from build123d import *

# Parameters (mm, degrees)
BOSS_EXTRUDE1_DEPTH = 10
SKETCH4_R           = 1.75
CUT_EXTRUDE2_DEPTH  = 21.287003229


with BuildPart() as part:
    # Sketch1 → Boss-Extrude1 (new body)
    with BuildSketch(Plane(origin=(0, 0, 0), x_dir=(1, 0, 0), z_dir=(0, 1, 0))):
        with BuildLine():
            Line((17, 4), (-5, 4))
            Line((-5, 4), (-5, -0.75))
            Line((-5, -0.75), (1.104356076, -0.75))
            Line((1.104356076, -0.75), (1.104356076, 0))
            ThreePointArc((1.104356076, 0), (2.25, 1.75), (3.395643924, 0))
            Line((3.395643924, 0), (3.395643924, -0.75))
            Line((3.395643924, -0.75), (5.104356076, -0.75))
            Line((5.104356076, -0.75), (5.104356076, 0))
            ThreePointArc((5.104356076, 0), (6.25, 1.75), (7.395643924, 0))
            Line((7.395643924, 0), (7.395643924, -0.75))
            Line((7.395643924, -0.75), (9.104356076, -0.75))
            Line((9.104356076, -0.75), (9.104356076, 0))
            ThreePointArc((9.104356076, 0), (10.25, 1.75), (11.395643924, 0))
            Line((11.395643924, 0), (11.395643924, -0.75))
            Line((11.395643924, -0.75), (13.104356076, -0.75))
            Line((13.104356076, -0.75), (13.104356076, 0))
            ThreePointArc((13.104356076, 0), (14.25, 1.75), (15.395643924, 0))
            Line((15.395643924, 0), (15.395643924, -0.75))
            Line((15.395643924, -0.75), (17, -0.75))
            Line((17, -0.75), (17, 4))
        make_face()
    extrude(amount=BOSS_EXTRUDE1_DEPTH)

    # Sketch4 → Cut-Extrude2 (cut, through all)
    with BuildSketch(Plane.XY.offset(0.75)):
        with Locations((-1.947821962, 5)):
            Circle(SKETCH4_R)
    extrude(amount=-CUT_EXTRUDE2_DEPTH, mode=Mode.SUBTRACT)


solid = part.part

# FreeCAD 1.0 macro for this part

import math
import FreeCAD as App
import Part
import Sketcher
from FreeCAD import Vector
Q = App.Units.Quantity

doc = App.newDocument("Part")
body = doc.addObject("PartDesign::Body", "Body")

# Sketch on XZ plane
sketch1 = body.newObject("Sketcher::SketchObject", "Sketch")
sketch1.AttachmentSupport = (doc.getObject("XZ_Plane"), [""])
sketch1.MapMode = "FlatFace"
sketch1.addGeometry([
    Part.LineSegment(Vector(17, -4, 0), Vector(-5, -4, 0)),  # 0
    Part.LineSegment(Vector(-5, -4, 0), Vector(-5, 0.75, 0)),  # 1
    Part.LineSegment(Vector(-5, 0.75, 0), Vector(1.104356, 0.75, 0)),  # 2
    Part.LineSegment(Vector(1.104356, 0.75, 0), Vector(1.104356, 0, 0)),  # 3
    Part.ArcOfCircle(Part.Circle(Vector(2.25, -0.5, 0), Vector(0, 0, 1), 1.25), math.radians(156.421822), math.radians(383.578178)),  # 4
    Part.LineSegment(Vector(3.395644, 0, 0), Vector(3.395644, 0.75, 0)),  # 5
    Part.LineSegment(Vector(3.395644, 0.75, 0), Vector(5.104356, 0.75, 0)),  # 6
    Part.LineSegment(Vector(5.104356, 0.75, 0), Vector(5.104356, 0, 0)),  # 7
    Part.ArcOfCircle(Part.Circle(Vector(6.25, -0.5, 0), Vector(0, 0, 1), 1.25), math.radians(156.421822), math.radians(383.578178)),  # 8
    Part.LineSegment(Vector(7.395644, 0, 0), Vector(7.395644, 0.75, 0)),  # 9
    Part.LineSegment(Vector(7.395644, 0.75, 0), Vector(9.104356, 0.75, 0)),  # 10
    Part.LineSegment(Vector(9.104356, 0.75, 0), Vector(9.104356, 0, 0)),  # 11
    Part.ArcOfCircle(Part.Circle(Vector(10.25, -0.5, 0), Vector(0, 0, 1), 1.25), math.radians(156.421822), math.radians(383.578178)),  # 12
    Part.LineSegment(Vector(11.395644, 0, 0), Vector(11.395644, 0.75, 0)),  # 13
    Part.LineSegment(Vector(11.395644, 0.75, 0), Vector(13.104356, 0.75, 0)),  # 14
    Part.LineSegment(Vector(13.104356, 0.75, 0), Vector(13.104356, 0, 0)),  # 15
    Part.ArcOfCircle(Part.Circle(Vector(14.25, -0.5, 0), Vector(0, 0, 1), 1.25), math.radians(156.421822), math.radians(383.578178)),  # 16
    Part.LineSegment(Vector(15.395644, 0, 0), Vector(15.395644, 0.75, 0)),  # 17
    Part.LineSegment(Vector(15.395644, 0.75, 0), Vector(17, 0.75, 0)),  # 18
    Part.LineSegment(Vector(17, 0.75, 0), Vector(17, -4, 0)),  # 19
], False)
sketch1.addConstraint([
    Sketcher.Constraint("Coincident", 0, 2, 1, 1),
    Sketcher.Constraint("Coincident", 1, 2, 2, 1),
    Sketcher.Constraint("Coincident", 2, 2, 3, 1),
    Sketcher.Constraint("Coincident", 3, 2, 4, 1),
    Sketcher.Constraint("Coincident", 4, 2, 5, 1),
    Sketcher.Constraint("Coincident", 5, 2, 6, 1),
    Sketcher.Constraint("Coincident", 6, 2, 7, 1),
    Sketcher.Constraint("Coincident", 7, 2, 8, 1),
    Sketcher.Constraint("Coincident", 8, 2, 9, 1),
    Sketcher.Constraint("Coincident", 9, 2, 10, 1),
    Sketcher.Constraint("Coincident", 10, 2, 11, 1),
    Sketcher.Constraint("Coincident", 11, 2, 12, 1),
    Sketcher.Constraint("Coincident", 12, 2, 13, 1),
    Sketcher.Constraint("Coincident", 13, 2, 14, 1),
    Sketcher.Constraint("Coincident", 14, 2, 15, 1),
    Sketcher.Constraint("Coincident", 15, 2, 16, 1),
    Sketcher.Constraint("Coincident", 16, 2, 17, 1),
    Sketcher.Constraint("Coincident", 17, 2, 18, 1),
    Sketcher.Constraint("Coincident", 18, 2, 19, 1),
    Sketcher.Constraint("Coincident", 19, 2, 0, 1),
    Sketcher.Constraint("Horizontal", 0),
    Sketcher.Constraint("Vertical", 1),
    Sketcher.Constraint("Horizontal", 2),
    Sketcher.Constraint("Vertical", 3),
    Sketcher.Constraint("Vertical", 5),
    Sketcher.Constraint("Horizontal", 6),
    Sketcher.Constraint("Vertical", 7),
    Sketcher.Constraint("Vertical", 9),
    Sketcher.Constraint("Horizontal", 10),
    Sketcher.Constraint("Vertical", 11),
    Sketcher.Constraint("Vertical", 13),
    Sketcher.Constraint("Horizontal", 14),
    Sketcher.Constraint("Vertical", 15),
    Sketcher.Constraint("Vertical", 17),
    Sketcher.Constraint("Horizontal", 18),
    Sketcher.Constraint("Vertical", 19),
    Sketcher.Constraint("Equal", 4, 8),
    Sketcher.Constraint("Equal", 8, 12),
    Sketcher.Constraint("Equal", 12, 16),
    Sketcher.Constraint("PointOnObject", 3, 2, -1),
    Sketcher.Constraint("PointOnObject", 4, 2, -1),
    Sketcher.Constraint("PointOnObject", 7, 2, -1),
    Sketcher.Constraint("PointOnObject", 8, 2, -1),
    Sketcher.Constraint("PointOnObject", 11, 2, -1),
    Sketcher.Constraint("PointOnObject", 12, 2, -1),
    Sketcher.Constraint("PointOnObject", 15, 2, -1),
    Sketcher.Constraint("PointOnObject", 16, 2, -1),
    Sketcher.Constraint("Horizontal", 4, 3, 8, 3),
    Sketcher.Constraint("Horizontal", 8, 3, 12, 3),
    Sketcher.Constraint("Horizontal", 12, 3, 16, 3),
    Sketcher.Constraint("Horizontal", 2, 2, 5, 2),
    Sketcher.Constraint("Horizontal", 6, 2, 9, 2),
    Sketcher.Constraint("Horizontal", 10, 2, 13, 2),
    Sketcher.Constraint("Horizontal", 14, 2, 17, 2),
    Sketcher.Constraint("Equal", 6, 10),
    Sketcher.Constraint("Equal", 10, 14),
    Sketcher.Constraint("DistanceX", 0, 2, 0, 1, Q("22 mm")),
    Sketcher.Constraint("Radius", 4, Q("1.25 mm")),
    Sketcher.Constraint("DistanceX", 0, 2, -1, 1, Q("5 mm")),
    Sketcher.Constraint("DistanceY", 0, 2, -1, 1, Q("4 mm")),
    Sketcher.Constraint("DistanceX", 4, 3, 8, 3, Q("4 mm")),
    Sketcher.Constraint("DistanceY", 1, 1, 1, 2, Q("4.75 mm")),
    Sketcher.Constraint("DistanceY", 4, 3, -1, 1, Q("0.5 mm")),
    Sketcher.Constraint("DistanceX", -1, 1, 4, 3, Q("2.25 mm")),
])
pad1 = body.newObject("PartDesign::Pad", "Pad")
pad1.Profile = sketch1
pad1.Length = 10
pad1.Reversed = True

# Sketch on XY plane
sketch2 = body.newObject("Sketcher::SketchObject", "Sketch001")
sketch2.AttachmentSupport = (doc.getObject("XY_Plane"), [""])
sketch2.MapMode = "FlatFace"
sketch2.AttachmentOffset = App.Placement(Vector(0, 0, 0.75), App.Rotation())
sketch2.addGeometry(Part.Circle(Vector(-1.947822, 5, 0), Vector(0, 0, 1), 1.75), False)
sketch2.addConstraint([
    Sketcher.Constraint("Diameter", 0, Q("3.5 mm")),
    Sketcher.Constraint("DistanceY", -1, 1, 0, 3, Q("5 mm")),
    Sketcher.Constraint("DistanceX", 0, 3, -1, 1, Q("1.947822 mm")),
])
pocket1 = body.newObject("PartDesign::Pocket", "Pocket")
pocket1.Profile = sketch2
pocket1.Type = "ThroughAll"

doc.recompute()
